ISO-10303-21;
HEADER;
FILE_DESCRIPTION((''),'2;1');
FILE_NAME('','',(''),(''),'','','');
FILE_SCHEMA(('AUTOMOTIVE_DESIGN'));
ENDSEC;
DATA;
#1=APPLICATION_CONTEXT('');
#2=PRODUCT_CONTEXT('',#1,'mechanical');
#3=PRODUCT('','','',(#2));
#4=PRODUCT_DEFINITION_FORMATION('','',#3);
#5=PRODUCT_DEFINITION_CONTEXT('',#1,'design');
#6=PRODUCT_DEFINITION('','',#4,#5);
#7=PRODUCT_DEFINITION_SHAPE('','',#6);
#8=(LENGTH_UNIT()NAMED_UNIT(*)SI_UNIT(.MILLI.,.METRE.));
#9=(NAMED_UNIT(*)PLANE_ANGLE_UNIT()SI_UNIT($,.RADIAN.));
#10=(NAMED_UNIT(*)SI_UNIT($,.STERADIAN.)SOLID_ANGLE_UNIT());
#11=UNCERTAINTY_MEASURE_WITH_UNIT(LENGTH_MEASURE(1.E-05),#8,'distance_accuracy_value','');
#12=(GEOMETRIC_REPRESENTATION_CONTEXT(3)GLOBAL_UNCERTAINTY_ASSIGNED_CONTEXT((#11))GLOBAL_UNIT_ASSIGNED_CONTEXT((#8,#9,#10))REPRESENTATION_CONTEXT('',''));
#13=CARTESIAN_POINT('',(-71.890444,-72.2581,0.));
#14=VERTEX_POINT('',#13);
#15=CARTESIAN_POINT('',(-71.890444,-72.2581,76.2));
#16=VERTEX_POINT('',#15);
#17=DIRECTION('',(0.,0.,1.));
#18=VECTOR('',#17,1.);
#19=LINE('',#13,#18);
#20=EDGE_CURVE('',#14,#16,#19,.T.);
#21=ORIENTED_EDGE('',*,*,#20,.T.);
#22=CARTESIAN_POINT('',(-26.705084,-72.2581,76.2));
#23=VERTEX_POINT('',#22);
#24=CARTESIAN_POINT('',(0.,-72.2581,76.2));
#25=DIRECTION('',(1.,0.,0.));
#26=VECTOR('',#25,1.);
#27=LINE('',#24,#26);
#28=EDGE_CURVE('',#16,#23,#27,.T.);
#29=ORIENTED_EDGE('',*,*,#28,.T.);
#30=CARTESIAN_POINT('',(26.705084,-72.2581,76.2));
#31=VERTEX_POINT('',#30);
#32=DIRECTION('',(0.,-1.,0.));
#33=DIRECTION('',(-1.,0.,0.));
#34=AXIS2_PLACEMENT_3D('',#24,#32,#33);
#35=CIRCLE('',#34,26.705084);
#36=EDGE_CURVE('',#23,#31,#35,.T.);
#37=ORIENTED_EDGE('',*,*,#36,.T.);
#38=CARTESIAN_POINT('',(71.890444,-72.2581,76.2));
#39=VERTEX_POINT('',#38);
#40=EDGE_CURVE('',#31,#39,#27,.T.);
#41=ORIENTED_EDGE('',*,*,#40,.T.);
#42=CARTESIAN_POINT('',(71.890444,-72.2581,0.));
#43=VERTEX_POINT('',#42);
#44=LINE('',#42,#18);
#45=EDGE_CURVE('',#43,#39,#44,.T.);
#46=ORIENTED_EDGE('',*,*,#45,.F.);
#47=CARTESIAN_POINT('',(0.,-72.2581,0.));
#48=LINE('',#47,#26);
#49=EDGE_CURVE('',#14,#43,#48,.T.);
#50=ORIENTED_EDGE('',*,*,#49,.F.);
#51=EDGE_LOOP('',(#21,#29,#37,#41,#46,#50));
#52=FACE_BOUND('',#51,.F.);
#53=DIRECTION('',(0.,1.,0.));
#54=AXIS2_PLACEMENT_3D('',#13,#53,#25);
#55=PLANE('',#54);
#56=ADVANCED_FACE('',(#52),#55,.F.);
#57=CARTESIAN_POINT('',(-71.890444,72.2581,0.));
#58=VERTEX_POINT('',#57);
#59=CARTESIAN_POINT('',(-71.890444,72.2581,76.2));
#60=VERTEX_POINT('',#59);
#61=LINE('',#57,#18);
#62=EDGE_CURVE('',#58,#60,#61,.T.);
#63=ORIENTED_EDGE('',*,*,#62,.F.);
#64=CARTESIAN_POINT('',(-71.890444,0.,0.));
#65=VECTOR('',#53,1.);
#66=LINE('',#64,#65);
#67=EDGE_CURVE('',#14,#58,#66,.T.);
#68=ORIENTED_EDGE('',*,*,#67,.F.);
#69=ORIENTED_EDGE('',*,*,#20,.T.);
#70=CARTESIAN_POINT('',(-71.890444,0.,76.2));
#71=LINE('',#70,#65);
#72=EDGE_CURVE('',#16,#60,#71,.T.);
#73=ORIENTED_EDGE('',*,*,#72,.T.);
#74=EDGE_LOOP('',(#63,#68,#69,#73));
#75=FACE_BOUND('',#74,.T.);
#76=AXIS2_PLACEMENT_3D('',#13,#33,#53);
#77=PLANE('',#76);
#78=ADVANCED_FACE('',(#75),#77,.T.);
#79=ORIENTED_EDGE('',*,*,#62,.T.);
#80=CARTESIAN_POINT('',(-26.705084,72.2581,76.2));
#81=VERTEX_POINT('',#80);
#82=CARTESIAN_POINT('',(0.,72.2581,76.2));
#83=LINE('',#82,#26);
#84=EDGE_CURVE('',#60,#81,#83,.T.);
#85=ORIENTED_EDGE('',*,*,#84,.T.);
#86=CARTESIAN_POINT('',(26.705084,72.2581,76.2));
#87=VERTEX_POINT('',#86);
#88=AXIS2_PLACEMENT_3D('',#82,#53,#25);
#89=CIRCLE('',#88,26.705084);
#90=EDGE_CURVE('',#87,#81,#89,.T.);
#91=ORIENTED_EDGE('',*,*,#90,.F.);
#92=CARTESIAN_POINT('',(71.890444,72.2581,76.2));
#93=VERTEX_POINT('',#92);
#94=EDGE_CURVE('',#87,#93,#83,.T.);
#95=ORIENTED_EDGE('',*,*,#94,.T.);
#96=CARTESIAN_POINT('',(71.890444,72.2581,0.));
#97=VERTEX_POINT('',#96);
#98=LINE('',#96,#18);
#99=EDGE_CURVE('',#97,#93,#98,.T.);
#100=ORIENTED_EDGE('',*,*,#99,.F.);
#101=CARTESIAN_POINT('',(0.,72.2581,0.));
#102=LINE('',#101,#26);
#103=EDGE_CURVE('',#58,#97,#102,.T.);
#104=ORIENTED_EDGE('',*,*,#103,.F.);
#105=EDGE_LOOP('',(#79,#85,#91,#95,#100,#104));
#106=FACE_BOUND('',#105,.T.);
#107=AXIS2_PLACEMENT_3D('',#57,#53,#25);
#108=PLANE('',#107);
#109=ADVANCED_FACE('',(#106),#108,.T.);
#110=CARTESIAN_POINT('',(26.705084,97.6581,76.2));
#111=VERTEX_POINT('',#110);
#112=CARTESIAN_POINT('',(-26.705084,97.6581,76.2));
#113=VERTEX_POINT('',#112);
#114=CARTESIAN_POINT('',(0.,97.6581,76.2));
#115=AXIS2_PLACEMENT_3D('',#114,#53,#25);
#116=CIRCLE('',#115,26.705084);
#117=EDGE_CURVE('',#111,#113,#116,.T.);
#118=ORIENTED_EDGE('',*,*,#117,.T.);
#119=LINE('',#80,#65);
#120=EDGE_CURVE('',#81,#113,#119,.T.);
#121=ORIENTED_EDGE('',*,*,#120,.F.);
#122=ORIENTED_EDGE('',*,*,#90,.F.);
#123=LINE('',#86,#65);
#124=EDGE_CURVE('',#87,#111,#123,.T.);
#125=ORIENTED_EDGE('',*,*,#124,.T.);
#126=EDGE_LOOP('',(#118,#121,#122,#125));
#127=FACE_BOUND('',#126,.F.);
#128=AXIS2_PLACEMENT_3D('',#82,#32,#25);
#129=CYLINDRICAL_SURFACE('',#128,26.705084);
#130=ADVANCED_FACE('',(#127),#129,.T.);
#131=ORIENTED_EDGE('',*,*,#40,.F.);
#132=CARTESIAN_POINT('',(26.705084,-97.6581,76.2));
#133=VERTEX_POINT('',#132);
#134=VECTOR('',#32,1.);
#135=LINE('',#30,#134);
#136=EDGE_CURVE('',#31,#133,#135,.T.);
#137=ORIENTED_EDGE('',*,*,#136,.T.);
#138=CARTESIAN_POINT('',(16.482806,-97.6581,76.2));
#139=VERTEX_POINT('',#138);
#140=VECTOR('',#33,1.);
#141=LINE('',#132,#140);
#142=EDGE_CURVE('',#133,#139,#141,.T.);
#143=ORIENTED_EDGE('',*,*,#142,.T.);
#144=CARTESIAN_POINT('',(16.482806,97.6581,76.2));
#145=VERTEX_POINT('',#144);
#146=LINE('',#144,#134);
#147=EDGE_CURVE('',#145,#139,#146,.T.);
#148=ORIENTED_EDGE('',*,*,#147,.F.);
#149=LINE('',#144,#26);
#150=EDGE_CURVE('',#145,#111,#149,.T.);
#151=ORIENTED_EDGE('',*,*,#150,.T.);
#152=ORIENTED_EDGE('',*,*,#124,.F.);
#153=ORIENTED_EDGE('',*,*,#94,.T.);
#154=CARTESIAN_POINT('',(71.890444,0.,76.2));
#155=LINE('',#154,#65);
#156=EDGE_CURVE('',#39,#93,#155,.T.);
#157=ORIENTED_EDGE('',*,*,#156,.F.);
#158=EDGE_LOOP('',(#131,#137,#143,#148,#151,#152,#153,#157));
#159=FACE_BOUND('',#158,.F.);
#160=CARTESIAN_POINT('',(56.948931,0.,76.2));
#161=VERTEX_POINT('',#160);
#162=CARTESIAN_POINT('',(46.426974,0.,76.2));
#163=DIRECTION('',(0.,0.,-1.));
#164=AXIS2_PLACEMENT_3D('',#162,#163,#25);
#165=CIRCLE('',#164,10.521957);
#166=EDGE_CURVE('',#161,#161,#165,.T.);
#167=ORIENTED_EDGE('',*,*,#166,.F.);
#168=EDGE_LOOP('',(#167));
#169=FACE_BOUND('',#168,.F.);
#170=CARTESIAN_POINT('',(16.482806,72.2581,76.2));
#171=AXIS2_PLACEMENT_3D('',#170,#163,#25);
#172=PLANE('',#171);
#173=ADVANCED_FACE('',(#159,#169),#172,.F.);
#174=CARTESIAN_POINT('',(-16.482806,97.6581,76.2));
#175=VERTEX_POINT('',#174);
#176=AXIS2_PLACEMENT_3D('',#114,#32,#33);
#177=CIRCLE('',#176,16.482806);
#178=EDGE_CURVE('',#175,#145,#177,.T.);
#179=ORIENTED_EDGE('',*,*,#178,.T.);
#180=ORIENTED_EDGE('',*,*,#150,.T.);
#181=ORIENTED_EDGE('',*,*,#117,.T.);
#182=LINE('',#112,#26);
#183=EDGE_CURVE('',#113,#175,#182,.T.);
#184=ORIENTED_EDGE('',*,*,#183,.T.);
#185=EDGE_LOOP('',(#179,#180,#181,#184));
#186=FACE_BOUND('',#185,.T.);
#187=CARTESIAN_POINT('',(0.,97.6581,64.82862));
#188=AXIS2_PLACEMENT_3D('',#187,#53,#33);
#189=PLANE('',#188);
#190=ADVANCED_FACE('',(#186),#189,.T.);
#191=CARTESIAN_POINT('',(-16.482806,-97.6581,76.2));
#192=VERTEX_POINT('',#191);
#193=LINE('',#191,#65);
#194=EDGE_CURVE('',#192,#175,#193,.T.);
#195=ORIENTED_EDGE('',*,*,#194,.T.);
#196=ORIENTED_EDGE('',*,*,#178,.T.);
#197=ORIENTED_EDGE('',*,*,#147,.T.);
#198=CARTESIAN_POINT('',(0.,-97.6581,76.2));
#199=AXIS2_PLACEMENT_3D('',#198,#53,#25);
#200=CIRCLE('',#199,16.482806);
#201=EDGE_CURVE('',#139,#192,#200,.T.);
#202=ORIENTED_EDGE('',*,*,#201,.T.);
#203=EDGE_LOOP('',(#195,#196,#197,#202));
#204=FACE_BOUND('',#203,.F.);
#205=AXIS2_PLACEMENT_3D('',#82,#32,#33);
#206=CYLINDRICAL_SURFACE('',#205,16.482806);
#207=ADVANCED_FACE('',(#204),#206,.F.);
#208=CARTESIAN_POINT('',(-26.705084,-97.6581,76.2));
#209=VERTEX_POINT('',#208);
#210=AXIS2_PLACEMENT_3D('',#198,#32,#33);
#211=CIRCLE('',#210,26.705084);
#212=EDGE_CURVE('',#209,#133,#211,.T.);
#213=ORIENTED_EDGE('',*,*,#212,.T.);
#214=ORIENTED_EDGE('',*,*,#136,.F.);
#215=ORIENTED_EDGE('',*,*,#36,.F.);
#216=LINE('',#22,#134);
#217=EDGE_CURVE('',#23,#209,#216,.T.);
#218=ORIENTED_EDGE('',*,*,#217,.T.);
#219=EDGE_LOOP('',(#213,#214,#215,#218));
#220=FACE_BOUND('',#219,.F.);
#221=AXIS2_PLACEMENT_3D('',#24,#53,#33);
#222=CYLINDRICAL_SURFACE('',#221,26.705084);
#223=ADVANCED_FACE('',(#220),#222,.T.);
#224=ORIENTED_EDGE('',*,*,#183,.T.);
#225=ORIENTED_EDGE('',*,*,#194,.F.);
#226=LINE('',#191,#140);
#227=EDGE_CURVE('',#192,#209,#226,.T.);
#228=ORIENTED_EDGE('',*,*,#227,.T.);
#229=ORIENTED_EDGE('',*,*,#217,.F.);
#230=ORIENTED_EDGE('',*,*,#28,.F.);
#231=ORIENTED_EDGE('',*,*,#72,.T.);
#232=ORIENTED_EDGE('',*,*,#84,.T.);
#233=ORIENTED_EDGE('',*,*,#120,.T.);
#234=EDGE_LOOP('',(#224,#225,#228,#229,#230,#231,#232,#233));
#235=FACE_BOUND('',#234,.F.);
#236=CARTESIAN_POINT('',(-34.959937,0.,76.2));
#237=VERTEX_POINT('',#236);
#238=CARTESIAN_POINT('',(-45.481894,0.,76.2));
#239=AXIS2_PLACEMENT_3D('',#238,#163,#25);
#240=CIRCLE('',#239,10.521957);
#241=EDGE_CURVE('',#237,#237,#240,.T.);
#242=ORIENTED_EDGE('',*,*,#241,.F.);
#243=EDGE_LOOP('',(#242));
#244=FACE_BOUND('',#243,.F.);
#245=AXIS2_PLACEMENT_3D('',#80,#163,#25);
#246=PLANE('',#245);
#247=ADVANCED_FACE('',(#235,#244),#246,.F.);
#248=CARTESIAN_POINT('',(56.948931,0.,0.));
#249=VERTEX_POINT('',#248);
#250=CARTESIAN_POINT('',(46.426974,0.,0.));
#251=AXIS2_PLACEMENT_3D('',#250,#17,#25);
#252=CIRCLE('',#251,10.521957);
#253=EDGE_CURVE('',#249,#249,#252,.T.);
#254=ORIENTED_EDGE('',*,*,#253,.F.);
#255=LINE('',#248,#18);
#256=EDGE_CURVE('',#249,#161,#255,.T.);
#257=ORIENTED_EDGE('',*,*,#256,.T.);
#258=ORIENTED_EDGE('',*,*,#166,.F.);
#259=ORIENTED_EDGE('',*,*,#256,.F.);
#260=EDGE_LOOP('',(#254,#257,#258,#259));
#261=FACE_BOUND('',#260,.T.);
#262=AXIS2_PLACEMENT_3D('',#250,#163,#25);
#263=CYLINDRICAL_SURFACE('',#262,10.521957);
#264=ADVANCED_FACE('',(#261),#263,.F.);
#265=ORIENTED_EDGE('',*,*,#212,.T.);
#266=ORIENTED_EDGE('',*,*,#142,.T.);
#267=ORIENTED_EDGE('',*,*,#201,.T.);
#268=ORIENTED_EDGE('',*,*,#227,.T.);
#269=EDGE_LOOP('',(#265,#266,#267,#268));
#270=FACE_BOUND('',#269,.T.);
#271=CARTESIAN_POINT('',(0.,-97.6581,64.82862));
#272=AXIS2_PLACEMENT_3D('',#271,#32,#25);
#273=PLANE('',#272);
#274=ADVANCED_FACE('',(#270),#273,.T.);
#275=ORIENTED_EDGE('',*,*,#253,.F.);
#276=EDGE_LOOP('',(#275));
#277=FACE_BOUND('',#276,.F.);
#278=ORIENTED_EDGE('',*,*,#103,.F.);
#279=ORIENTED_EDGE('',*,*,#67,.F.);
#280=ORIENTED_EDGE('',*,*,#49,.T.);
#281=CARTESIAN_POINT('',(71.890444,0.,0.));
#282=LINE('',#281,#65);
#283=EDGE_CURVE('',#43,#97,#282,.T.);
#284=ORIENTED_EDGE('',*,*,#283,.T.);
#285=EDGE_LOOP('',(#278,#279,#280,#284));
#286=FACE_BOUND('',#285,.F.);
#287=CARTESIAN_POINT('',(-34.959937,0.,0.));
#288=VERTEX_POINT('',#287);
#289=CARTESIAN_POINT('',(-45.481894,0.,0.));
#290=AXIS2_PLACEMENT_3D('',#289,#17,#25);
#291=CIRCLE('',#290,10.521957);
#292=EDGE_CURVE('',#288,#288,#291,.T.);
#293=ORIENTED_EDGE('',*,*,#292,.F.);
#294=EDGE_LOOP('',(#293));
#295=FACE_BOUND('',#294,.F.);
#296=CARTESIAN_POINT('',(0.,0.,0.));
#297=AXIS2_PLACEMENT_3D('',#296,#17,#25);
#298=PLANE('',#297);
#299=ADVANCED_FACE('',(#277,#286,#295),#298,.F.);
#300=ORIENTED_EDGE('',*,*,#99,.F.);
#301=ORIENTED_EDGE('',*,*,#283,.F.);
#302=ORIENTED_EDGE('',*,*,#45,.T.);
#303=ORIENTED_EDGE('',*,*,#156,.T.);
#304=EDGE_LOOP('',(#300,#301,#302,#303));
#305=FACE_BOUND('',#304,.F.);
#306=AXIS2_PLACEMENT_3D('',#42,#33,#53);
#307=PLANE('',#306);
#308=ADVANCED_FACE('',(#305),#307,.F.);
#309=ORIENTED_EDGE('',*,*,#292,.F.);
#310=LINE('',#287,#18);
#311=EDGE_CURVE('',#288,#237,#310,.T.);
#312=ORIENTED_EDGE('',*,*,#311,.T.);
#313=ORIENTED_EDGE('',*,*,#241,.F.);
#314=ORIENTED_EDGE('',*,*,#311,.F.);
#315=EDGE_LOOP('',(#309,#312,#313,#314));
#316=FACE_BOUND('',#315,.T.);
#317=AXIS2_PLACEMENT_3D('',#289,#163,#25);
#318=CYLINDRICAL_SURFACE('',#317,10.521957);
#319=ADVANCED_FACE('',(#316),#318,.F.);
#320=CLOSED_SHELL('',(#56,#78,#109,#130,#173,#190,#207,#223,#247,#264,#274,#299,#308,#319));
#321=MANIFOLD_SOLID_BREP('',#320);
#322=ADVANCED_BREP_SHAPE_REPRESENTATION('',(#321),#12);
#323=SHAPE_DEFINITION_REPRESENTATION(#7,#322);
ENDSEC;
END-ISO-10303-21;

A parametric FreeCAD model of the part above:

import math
import FreeCAD as App
import Part
import Sketcher

V = App.Vector
Q = App.Units.Quantity


def add_polygon(sketch, points):
    """Adds a closed chain of lines whose ends are joined by coincident constraints."""
    first, n = sketch.GeometryCount, len(points)
    for a, b in zip(points, points[1:] + points[:1]):
        sketch.addGeometry(Part.LineSegment(App.Vector(*a, 0), App.Vector(*b, 0)), False)
    for i in range(n):
        sketch.addConstraint(Sketcher.Constraint("Coincident", first + i, 2, first + (i + 1) % n, 1))

doc = App.newDocument("Part")
body = doc.addObject("PartDesign::Body", "Body")

# Sketch on XY plane
sketch1 = body.newObject("Sketcher::SketchObject", "Sketch")
sketch1.AttachmentSupport = (doc.getObject("XY_Plane"), [""])
sketch1.MapMode = "FlatFace"
add_polygon(sketch1, [(-72, 72), (-72, -72), (72, -72), (72, 72)])  # lines 0-3
sketch1.addConstraint([
    Sketcher.Constraint("Vertical", 0),
    Sketcher.Constraint("Horizontal", 1),
    Sketcher.Constraint("Vertical", 2),
    Sketcher.Constraint("Horizontal", 3),
    Sketcher.Constraint("Symmetric", 0, 2, 2, 2, -1, 1),
    Sketcher.Constraint("DistanceY", 0, 2, 0, 1, Q("144.5162 mm")),
    Sketcher.Constraint("DistanceX", 1, 1, 1, 2, Q("143.780887 mm")),
])
pad1 = body.newObject("PartDesign::Pad", "Pad")
pad1.Profile = sketch1
pad1.Length = Q("3 in")

# Sketch on XZ plane
sketch2 = body.newObject("Sketcher::SketchObject", "Sketch001")
sketch2.AttachmentSupport = (doc.getObject("XZ_Plane"), [""])
sketch2.MapMode = "FlatFace"
sketch2.AttachmentOffset = App.Placement(V(0, 0, 72.2581), App.Rotation())
sketch2.addGeometry([
    Part.ArcOfCircle(Part.Circle(V(0, 76, 0), V(0, 0, 1), 16), math.radians(180), math.radians(360)),
    Part.LineSegment(V(16, 76, 0), V(-16, 76, 0)),
], False)
sketch2.addConstraint([
    Sketcher.Constraint("Coincident", 0, 1, 1, 2),
    Sketcher.Constraint("Coincident", 1, 1, 0, 2),
    Sketcher.Constraint("Horizontal", 1),
    Sketcher.Constraint("PointOnObject", 0, 3, -2),
    Sketcher.Constraint("DistanceY", -1, 1, 0, 3, Q("3 in")),
    Sketcher.Constraint("DistanceY", -1, 1, 0, 1, Q("3 in")),
    Sketcher.Constraint("Radius", 0, Q("16.482806 mm")),
])
pocket1 = body.newObject("PartDesign::Pocket", "Pocket")
pocket1.Profile = sketch2
pocket1.Type = "ThroughAll"

# Sketch on XZ plane
sketch3 = body.newObject("Sketcher::SketchObject", "Sketch002")
sketch3.AttachmentSupport = (doc.getObject("XZ_Plane"), [""])
sketch3.MapMode = "FlatFace"
sketch3.AttachmentOffset = App.Placement(V(0, 0, 72.2581), App.Rotation())
sketch3.addGeometry([
    Part.LineSegment(V(-16, 76, 0), V(-27, 76, 0)),
    Part.ArcOfCircle(Part.Circle(V(0, 76, 0), V(0, 0, 1), 27), math.radians(180), math.radians(360)),
    Part.LineSegment(V(27, 76, 0), V(16, 76, 0)),
    Part.ArcOfCircle(Part.Circle(V(0, 76, 0), V(0, 0, 1), 16), math.radians(180), math.radians(360)),
], False)
sketch3.addConstraint([
    Sketcher.Constraint("Coincident", 0, 2, 1, 1),
    Sketcher.Constraint("Coincident", 1, 2, 2, 1),
    Sketcher.Constraint("Coincident", 2, 2, 3, 2),
    Sketcher.Constraint("Coincident", 3, 1, 0, 1),
    Sketcher.Constraint("Horizontal", 0),
    Sketcher.Constraint("Horizontal", 2),
    Sketcher.Constraint("Coincident", 3, 3, 1, 3),
    Sketcher.Constraint("Symmetric", 0, 2, 1, 2, -2),
    Sketcher.Constraint("Horizontal", 3, 3, 0, 2),
    Sketcher.Constraint("DistanceY", -1, 1, 1, 3, Q("3 in")),
    Sketcher.Constraint("Radius", 1, Q("26.705084 mm")),
    Sketcher.Constraint("Radius", 3, Q("16.482806 mm")),
])
pad2 = body.newObject("PartDesign::Pad", "Pad001")
pad2.Profile = sketch3
pad2.Length = Q("1 in")

# Sketch on XZ plane
sketch4 = body.newObject("Sketcher::SketchObject", "Sketch003")
sketch4.AttachmentSupport = (doc.getObject("XZ_Plane"), [""])
sketch4.MapMode = "FlatFace"
sketch4.AttachmentOffset = App.Placement(V(0, 0, -72.2581), App.Rotation())
sketch4.addGeometry([
    Part.ArcOfCircle(Part.Circle(V(0, 76, 0), V(0, 0, 1), 27), math.radians(180), math.radians(360)),
    Part.LineSegment(V(-27, 76, 0), V(-16, 76, 0)),
    Part.ArcOfCircle(Part.Circle(V(0, 76, 0), V(0, 0, 1), 16), math.radians(180), math.radians(360)),
    Part.LineSegment(V(16, 76, 0), V(27, 76, 0)),
], False)
sketch4.addConstraint([
    Sketcher.Constraint("Coincident", 0, 1, 1, 1),
    Sketcher.Constraint("Coincident", 1, 2, 2, 1),
    Sketcher.Constraint("Coincident", 2, 2, 3, 1),
    Sketcher.Constraint("Coincident", 3, 2, 0, 2),
    Sketcher.Constraint("Horizontal", 1),
    Sketcher.Constraint("Horizontal", 3),
    Sketcher.Constraint("Coincident", 2, 3, 0, 3),
    Sketcher.Constraint("Symmetric", 1, 2, 2, 2, -2),
    Sketcher.Constraint("Horizontal", 2, 3, 0, 1),
    Sketcher.Constraint("DistanceY", -1, 1, 0, 3, Q("3 in")),
    Sketcher.Constraint("Radius", 0, Q("26.705084 mm")),
    Sketcher.Constraint("Radius", 2, Q("16.482806 mm")),
])
pad3 = body.newObject("PartDesign::Pad", "Pad002")
pad3.Profile = sketch4
pad3.Length = Q("1 in")
pad3.Reversed = True

# Sketch on XY plane
sketch5 = body.newObject("Sketcher::SketchObject", "Sketch004")
sketch5.AttachmentSupport = (doc.getObject("XY_Plane"), [""])
sketch5.MapMode = "FlatFace"
sketch5.addGeometry([
    Part.Circle(V(46, 0, 0), V(0, 0, 1), 11),
    Part.Circle(V(-45, 0, 0), V(0, 0, 1), 11),
], False)
sketch5.addConstraint([
    Sketcher.Constraint("Equal", 0, 1),
    Sketcher.Constraint("PointOnObject", 0, 3, -1),
    Sketcher.Constraint("PointOnObject", 1, 3, -1),
    Sketcher.Constraint("Diameter", 0, Q("21.043914 mm")),
    Sketcher.Constraint("DistanceX", 1, 3, 0, 3, Q("91.908868 mm")),
    Sketcher.Constraint("DistanceX", -1, 1, 0, 3, Q("46.426974 mm")),
])
pocket2 = body.newObject("PartDesign::Pocket", "Pocket001")
pocket2.Profile = sketch5
pocket2.Length = Q("4 in")
pocket2.Reversed = True

doc.recompute()
